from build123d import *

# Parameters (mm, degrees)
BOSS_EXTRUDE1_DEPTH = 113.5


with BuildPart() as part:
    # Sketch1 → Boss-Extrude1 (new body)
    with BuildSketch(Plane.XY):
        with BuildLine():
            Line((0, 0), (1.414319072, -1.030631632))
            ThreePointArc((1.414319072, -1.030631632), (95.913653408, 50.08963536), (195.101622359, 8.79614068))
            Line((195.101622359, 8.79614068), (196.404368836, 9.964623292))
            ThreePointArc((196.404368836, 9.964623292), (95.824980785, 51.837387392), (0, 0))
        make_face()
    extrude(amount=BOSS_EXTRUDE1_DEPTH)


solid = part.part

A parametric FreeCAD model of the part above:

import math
import FreeCAD as App
import Part
import Sketcher

doc = App.newDocument("Part")
params = doc.addObject("Spreadsheet::Sheet", "Params")
for row, (alias, value) in enumerate([
    ("sketch1_length", "1.75 mm"),
    ("pad1_length", "113.5 mm"),
], start=1):
    params.set(f"A{row}", alias)
    params.set(f"B{row}", "=" + value)
    params.setAlias(f"B{row}", alias)

body = doc.addObject("PartDesign::Body", "Body")

sketch1 = body.newObject("Sketcher::SketchObject", "Sketch")
sketch1.AttachmentSupport = (doc.getObject("XY_Plane"), [""])
sketch1.MapMode = "FlatFace"
sketch1.addGeometry([
    Part.LineSegment(App.Vector(0, 0, 0), App.Vector(1.414319, -1.030632, 0)),
    Part.ArcOfCircle(Part.Circle(App.Vector(102.234723, -74.499695, 0), App.Vector(0, 0, 1), 124.749578), math.radians(41.890132), math.radians(143.918718)),
    Part.LineSegment(App.Vector(195.101622, 8.796141, 0), App.Vector(196.404369, 9.964623, 0)),
    Part.ArcOfCircle(Part.Circle(App.Vector(102.234723, -74.499695, 0), App.Vector(0, 0, 1), 126.499578), math.radians(41.890132), math.radians(143.918718)),
], False)
sketch1.addConstraint([
    Sketcher.Constraint("Coincident", 0, 2, 1, 2),
    Sketcher.Constraint("Coincident", 1, 1, 2, 1),
    Sketcher.Constraint("Coincident", 2, 2, 3, 1),
    Sketcher.Constraint("Coincident", 3, 2, 0, 1),
    Sketcher.Constraint("Coincident", 3, 2, -1, 1),
    Sketcher.Constraint("Coincident", 3, 3, 1, 3),
    Sketcher.Constraint("Distance", 0, 1.75),
    Sketcher.Constraint("Radius", 1, 124.749578),
    Sketcher.Constraint("DistanceX", 3, 3, 1, 1, 92.866899),
    Sketcher.Constraint("DistanceX", -1, 1, 0, 2, 1.414319),
    Sketcher.Constraint("DistanceY", -1, 1, 1, 1, 8.796141),
    Sketcher.Constraint("DistanceX", -1, 1, 2, 2, 196.404369),
])
sketch1.setExpression("Constraints[6]", "Params.sketch1_length")
pad1 = body.newObject("PartDesign::Pad", "Pad")
pad1.Profile = sketch1
pad1.setExpression("Length", "Params.pad1_length")

doc.recompute()
